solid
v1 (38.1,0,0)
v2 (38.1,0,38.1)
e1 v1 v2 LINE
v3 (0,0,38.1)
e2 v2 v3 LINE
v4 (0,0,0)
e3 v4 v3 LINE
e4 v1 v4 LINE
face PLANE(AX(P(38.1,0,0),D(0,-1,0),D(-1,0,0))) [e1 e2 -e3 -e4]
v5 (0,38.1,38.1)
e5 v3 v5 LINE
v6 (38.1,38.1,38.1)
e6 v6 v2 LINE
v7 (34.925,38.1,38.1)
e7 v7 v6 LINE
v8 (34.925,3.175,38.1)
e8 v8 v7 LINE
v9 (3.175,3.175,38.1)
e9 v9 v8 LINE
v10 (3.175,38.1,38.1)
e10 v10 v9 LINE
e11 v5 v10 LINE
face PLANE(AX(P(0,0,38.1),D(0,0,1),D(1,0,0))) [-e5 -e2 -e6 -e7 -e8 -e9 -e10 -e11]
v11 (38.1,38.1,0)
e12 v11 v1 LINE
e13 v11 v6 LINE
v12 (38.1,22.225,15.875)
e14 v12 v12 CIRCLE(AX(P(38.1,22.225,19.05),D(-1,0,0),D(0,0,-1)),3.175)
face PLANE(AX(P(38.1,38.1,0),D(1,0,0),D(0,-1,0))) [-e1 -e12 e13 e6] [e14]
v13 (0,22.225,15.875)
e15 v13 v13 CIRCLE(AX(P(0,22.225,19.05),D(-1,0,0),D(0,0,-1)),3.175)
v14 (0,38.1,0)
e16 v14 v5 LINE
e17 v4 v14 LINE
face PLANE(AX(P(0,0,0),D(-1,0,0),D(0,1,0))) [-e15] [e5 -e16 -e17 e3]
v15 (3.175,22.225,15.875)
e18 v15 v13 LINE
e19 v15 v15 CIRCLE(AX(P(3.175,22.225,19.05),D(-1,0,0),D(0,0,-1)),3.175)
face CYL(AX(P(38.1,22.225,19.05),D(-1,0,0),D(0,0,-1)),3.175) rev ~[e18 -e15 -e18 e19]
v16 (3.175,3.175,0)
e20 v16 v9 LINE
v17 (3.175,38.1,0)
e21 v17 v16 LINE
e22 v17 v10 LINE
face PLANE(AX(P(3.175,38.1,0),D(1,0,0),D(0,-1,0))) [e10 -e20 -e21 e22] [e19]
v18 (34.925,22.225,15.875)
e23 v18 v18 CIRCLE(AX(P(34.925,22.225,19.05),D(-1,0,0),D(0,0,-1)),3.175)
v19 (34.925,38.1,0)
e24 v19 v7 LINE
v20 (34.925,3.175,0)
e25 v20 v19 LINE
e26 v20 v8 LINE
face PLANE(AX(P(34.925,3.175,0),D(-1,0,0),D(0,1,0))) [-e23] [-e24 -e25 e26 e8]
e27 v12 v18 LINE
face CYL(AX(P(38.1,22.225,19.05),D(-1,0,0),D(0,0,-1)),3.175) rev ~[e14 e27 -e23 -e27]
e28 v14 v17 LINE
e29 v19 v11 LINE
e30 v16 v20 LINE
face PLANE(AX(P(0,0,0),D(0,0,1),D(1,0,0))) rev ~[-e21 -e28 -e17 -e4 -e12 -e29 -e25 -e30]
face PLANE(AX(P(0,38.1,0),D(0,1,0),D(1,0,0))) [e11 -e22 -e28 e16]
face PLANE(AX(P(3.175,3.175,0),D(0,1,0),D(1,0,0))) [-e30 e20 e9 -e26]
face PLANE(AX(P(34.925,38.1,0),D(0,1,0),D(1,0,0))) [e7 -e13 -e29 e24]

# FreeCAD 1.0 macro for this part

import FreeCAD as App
import Part
import Sketcher
Q = App.Units.Quantity


def add_polygon(sketch, points):
    """Adds a closed chain of lines whose ends are joined by coincident constraints."""
    first, n = sketch.GeometryCount, len(points)
    for a, b in zip(points, points[1:] + points[:1]):
        sketch.addGeometry(Part.LineSegment(App.Vector(*a, 0), App.Vector(*b, 0)), False)
    for i in range(n):
        sketch.addConstraint(Sketcher.Constraint("Coincident", first + i, 2, first + (i + 1) % n, 1))

doc = App.newDocument("Part")
body = doc.addObject("PartDesign::Body", "Body")

# Sketch on XY plane
sketch1 = body.newObject("Sketcher::SketchObject", "Sketch")
sketch1.AttachmentSupport = (doc.getObject("XY_Plane"), [""])
sketch1.MapMode = "FlatFace"
add_polygon(sketch1, [(0, 38.1), (0, 0), (38.1, 0), (38.1, 38.1), (34.9, 38.1), (34.9, 3.2), (3.2, 3.2), (3.2, 38.1)])  # lines 0-7
sketch1.addConstraint([
    Sketcher.Constraint("Vertical", 0),
    Sketcher.Constraint("Horizontal", 1),
    Sketcher.Constraint("Vertical", 2),
    Sketcher.Constraint("Horizontal", 3),
    Sketcher.Constraint("Vertical", 4),
    Sketcher.Constraint("Horizontal", 5),
    Sketcher.Constraint("Vertical", 6),
    Sketcher.Constraint("Horizontal", 7),
    Sketcher.Constraint("Coincident", 0, 2, -1, 1),
    Sketcher.Constraint("Horizontal", 3, 2, 6, 2),
    Sketcher.Constraint("Equal", 3, 7),
    Sketcher.Constraint("Equal", 1, 0),
    Sketcher.Constraint("DistanceX", 1, 1, 1, 2, Q("1.5 in")),
    Sketcher.Constraint("DistanceX", 3, 2, 3, 1, Q("0.125 in")),
    Sketcher.Constraint("DistanceY", -1, 1, 4, 2, Q("0.125 in")),
])
pad1 = body.newObject("PartDesign::Pad", "Pad")
pad1.Profile = sketch1
pad1.Length = Q("1.5 in")

# Sketch on YZ plane
sketch2 = body.newObject("Sketcher::SketchObject", "Sketch001")
sketch2.AttachmentSupport = (doc.getObject("YZ_Plane"), [""])
sketch2.MapMode = "FlatFace"
sketch2.AttachmentOffset = App.Placement(App.Vector(0, 0, 1.5 * 25.4), App.Rotation())
sketch2.addGeometry(Part.Circle(App.Vector(22.2, 19.1, 0), App.Vector(0, 0, 1), 3.2), False)
sketch2.addConstraint([
    Sketcher.Constraint("Diameter", 0, Q("0.25 in")),
    Sketcher.Constraint("DistanceY", -1, 1, 0, 3, Q("0.75 in")),
    Sketcher.Constraint("DistanceX", -1, 1, 0, 3, Q("0.875 in")),
])
doc.recompute()
hole = body.newObject("PartDesign::Hole", "Hole")
hole.Profile = sketch2
hole.ThreadType = "None"
hole.Diameter = Q("0.25 in")
hole.DepthType = "ThroughAll"

doc.recompute()
